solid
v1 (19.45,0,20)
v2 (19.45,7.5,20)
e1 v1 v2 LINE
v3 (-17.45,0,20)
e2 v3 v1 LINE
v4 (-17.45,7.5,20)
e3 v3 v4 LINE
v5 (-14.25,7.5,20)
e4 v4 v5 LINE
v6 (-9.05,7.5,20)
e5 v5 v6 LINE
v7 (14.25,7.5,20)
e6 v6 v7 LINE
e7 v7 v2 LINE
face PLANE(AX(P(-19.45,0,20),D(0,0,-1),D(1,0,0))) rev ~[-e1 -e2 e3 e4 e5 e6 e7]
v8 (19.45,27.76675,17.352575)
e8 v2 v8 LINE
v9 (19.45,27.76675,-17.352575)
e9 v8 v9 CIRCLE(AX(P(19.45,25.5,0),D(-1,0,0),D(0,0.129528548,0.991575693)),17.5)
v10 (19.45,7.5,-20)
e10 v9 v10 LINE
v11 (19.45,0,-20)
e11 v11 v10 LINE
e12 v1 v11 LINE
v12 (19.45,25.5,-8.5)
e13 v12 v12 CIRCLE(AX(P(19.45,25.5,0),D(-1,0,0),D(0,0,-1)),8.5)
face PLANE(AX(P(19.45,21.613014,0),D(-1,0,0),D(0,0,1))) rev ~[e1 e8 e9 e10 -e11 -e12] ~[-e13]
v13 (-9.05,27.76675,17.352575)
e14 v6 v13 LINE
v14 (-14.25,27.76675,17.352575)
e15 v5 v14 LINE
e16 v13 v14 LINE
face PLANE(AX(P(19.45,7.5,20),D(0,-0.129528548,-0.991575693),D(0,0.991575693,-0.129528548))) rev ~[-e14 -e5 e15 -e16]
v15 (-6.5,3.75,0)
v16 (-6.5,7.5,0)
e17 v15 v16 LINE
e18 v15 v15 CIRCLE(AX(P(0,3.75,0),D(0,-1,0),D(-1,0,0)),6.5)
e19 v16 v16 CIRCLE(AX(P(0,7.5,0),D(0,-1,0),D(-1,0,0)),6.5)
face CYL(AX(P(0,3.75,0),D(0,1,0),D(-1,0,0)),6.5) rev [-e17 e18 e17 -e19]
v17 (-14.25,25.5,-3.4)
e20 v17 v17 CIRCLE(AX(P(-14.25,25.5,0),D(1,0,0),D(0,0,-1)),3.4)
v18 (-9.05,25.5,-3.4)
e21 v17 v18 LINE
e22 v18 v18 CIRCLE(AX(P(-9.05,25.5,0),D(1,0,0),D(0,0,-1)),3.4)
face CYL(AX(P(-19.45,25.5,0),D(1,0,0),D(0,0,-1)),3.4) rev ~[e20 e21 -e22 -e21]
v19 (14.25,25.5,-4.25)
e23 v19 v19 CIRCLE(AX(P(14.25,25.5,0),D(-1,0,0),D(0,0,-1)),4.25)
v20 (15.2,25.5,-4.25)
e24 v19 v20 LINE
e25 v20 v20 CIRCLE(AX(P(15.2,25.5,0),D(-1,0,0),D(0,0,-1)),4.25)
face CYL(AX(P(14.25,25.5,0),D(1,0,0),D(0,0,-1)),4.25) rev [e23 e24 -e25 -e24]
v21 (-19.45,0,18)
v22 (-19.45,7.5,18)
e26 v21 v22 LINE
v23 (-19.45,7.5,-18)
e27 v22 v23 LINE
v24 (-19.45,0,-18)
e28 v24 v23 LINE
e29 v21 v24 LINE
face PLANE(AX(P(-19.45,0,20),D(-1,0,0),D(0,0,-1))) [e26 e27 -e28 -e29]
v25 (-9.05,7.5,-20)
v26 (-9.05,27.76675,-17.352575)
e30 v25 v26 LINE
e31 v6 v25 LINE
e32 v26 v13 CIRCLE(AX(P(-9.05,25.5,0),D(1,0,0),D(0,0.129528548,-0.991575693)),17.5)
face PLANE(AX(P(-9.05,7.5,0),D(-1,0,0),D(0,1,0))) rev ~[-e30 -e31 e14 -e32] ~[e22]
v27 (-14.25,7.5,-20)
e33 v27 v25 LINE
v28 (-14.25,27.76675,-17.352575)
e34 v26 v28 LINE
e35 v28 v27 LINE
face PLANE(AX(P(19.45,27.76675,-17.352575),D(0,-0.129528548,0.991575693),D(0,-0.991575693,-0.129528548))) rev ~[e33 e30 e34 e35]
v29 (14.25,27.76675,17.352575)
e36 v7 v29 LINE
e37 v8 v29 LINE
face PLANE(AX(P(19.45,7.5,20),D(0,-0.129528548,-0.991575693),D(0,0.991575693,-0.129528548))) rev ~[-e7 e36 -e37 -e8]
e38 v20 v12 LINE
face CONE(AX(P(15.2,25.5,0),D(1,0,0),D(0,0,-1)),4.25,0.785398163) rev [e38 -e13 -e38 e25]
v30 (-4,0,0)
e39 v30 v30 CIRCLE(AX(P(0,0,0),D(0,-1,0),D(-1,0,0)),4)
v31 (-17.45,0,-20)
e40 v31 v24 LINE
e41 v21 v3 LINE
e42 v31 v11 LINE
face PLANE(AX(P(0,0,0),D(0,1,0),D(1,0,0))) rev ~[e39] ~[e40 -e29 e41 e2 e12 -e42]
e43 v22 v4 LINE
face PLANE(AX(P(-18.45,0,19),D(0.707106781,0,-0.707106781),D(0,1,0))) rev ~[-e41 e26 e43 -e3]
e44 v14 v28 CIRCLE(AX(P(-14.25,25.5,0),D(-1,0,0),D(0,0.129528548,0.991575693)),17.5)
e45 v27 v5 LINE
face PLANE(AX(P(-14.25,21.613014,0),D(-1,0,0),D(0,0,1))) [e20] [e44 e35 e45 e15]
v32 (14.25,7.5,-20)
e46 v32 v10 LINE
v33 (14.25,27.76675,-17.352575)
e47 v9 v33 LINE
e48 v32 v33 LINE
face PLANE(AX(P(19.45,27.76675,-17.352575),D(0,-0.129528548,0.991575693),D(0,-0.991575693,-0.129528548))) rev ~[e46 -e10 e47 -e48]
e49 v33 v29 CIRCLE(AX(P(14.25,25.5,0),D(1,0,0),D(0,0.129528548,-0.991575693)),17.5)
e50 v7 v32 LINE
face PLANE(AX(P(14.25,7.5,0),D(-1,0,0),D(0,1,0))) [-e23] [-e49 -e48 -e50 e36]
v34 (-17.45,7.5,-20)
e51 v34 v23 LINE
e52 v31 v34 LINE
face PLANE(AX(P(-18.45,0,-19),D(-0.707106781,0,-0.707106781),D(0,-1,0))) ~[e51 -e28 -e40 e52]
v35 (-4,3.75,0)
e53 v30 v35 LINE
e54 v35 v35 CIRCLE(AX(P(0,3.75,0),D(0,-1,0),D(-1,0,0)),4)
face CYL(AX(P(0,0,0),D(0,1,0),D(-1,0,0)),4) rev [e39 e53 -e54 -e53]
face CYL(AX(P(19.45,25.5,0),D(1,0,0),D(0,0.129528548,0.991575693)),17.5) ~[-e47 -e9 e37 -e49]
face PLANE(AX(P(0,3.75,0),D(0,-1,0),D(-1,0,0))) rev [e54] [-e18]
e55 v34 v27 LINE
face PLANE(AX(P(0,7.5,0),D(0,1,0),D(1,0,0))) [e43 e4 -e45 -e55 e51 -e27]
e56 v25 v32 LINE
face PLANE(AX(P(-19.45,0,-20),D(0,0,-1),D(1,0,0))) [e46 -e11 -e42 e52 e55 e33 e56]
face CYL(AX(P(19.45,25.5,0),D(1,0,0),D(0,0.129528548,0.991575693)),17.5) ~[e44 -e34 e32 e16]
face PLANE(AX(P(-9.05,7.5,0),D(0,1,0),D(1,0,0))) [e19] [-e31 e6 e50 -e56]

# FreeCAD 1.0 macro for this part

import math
import FreeCAD as App
import Part
import Sketcher
from FreeCAD import Vector
Q = App.Units.Quantity


def edges_at(feature, points):
    """Names of the edges that pass closest to the given points."""
    edges = feature.Shape.Edges
    near = lambda p: min(range(len(edges)), key=lambda i: edges[i].distToShape(Part.Vertex(*p))[0])
    return sorted({f"Edge{near(p) + 1}" for p in points})


def add_polygon(sketch, points):
    """Adds a closed chain of lines whose ends are joined by coincident constraints."""
    first, n = sketch.GeometryCount, len(points)
    for a, b in zip(points, points[1:] + points[:1]):
        sketch.addGeometry(Part.LineSegment(App.Vector(*a, 0), App.Vector(*b, 0)), False)
    for i in range(n):
        sketch.addConstraint(Sketcher.Constraint("Coincident", first + i, 2, first + (i + 1) % n, 1))

doc = App.newDocument("Part")
params = doc.addObject("Spreadsheet::Sheet", "Params")
for row, (alias, value) in enumerate([
    ("sketch1_height", "40 mm"),
    ("sketch1_width", "38.9 mm"),
    ("pad1_length", "7.5 mm"),
    ("sketch2_width", "4 mm"),
    ("sketch2_width2", "6.5 mm"),
    ("sketch2_height", "7.5 mm"),
    ("groove_angle", "360 deg"),
    ("sketch3_radius", "17.5 mm"),
    ("sketch3_height", "40 mm"),
    ("pad2_length", "33.7 mm"),
    ("sketch4_width", "23.3 mm"),
    ("sketch4_height", "35.5 mm"),
    ("chamfer_size", "2 mm"),
    ("sketch5_width", "5.2 mm"),
    ("sketch5_height", "8.5 mm"),
    ("sketch5_width2", "0.95 mm"),
    ("groove2_angle", "360 deg"),
    ("sketch6_diameter", "6.8 mm"),
    ("hole_diameter", "6.8 mm"),
    ("hole_depth", "5.2 mm"),
], start=1):
    params.set(f"A{row}", alias)
    params.set(f"B{row}", "=" + value)
    params.setAlias(f"B{row}", alias)

body = doc.addObject("PartDesign::Body", "Body")

sketch1 = body.newObject("Sketcher::SketchObject", "Sketch")
sketch1.AttachmentSupport = (doc.getObject("XZ_Plane"), [""])
sketch1.MapMode = "FlatFace"
add_polygon(sketch1, [(-19, -20), (-19, 20), (19, 20), (19, -20)])
sketch1.addConstraint(Sketcher.Constraint("Vertical", 0))
sketch1.addConstraint(Sketcher.Constraint("Horizontal", 1))
sketch1.addConstraint(Sketcher.Constraint("Vertical", 2))
sketch1.addConstraint(Sketcher.Constraint("Horizontal", 3))
sketch1.addConstraint(Sketcher.Constraint("Symmetric", 0, 2, 2, 2, -1, 1))
sketch1.addConstraint(Sketcher.Constraint("DistanceY", 0, 1, 0, 2, 40.0))
sketch1.addConstraint(Sketcher.Constraint("DistanceX", 1, 1, 1, 2, 38.9))
sketch1.setExpression("Constraints[9]", "Params.sketch1_height")
sketch1.setExpression("Constraints[10]", "Params.sketch1_width")
pad1 = body.newObject("PartDesign::Pad", "Pad")
pad1.Profile = sketch1
pad1.setExpression("Length", "Params.pad1_length")
pad1.Reversed = True

sketch2 = body.newObject("Sketcher::SketchObject", "Sketch001")
sketch2.AttachmentSupport = (doc.getObject("XY_Plane"), [""])
sketch2.MapMode = "FlatFace"
add_polygon(sketch2, [(-4, 3.8), (-4, 0), (0, 0), (0, 7.5), (-6.5, 7.5), (-6.5, 3.8)])
sketch2.addConstraint(Sketcher.Constraint("Vertical", 0))
sketch2.addConstraint(Sketcher.Constraint("Horizontal", 1))
sketch2.addConstraint(Sketcher.Constraint("Vertical", 2))
sketch2.addConstraint(Sketcher.Constraint("Horizontal", 3))
sketch2.addConstraint(Sketcher.Constraint("Vertical", 4))
sketch2.addConstraint(Sketcher.Constraint("Horizontal", 5))
sketch2.addConstraint(Sketcher.Constraint("Coincident", 1, 2, -1, 1))
sketch2.addConstraint(Sketcher.Constraint("Equal", 0, 4))
sketch2.addConstraint(Sketcher.Constraint("DistanceX", 1, 1, 1, 2, 4.0))
sketch2.addConstraint(Sketcher.Constraint("DistanceX", 3, 2, 3, 1, 6.5))
sketch2.addConstraint(Sketcher.Constraint("DistanceY", 2, 1, 2, 2, 7.5))
sketch2.setExpression("Constraints[14]", "Params.sketch2_width")
sketch2.setExpression("Constraints[15]", "Params.sketch2_width2")
sketch2.setExpression("Constraints[16]", "Params.sketch2_height")
groove = body.newObject("PartDesign::Groove", "Groove")
groove.Profile = sketch2
groove.ReferenceAxis = (sketch2, ["V_Axis"])
groove.setExpression("Angle", "Params.groove_angle")

sketch3 = body.newObject("Sketcher::SketchObject", "Sketch002")
sketch3.AttachmentSupport = (doc.getObject("YZ_Plane"), [""])
sketch3.MapMode = "FlatFace"
sketch3.AttachmentOffset = App.Placement(Vector(0, 0, 19.45), App.Rotation())
sketch3.addGeometry(Part.LineSegment(Vector(28, 17, 0), Vector(8, 20, 0)), False)
sketch3.addGeometry(Part.LineSegment(Vector(8, 20, 0), Vector(8, -20, 0)), False)
sketch3.addGeometry(Part.LineSegment(Vector(8, -20, 0), Vector(28, -17, 0)), False)
sketch3.addGeometry(Part.ArcOfCircle(Part.Circle(Vector(26, 0, 0), Vector(0, 0, 1), 18), math.radians(-83), math.radians(83)), False)
sketch3.addConstraint(Sketcher.Constraint("Coincident", 0, 2, 1, 1))
sketch3.addConstraint(Sketcher.Constraint("Coincident", 1, 2, 2, 1))
sketch3.addConstraint(Sketcher.Constraint("Tangent", 2, 2, 3, 1))
sketch3.addConstraint(Sketcher.Constraint("Tangent", 3, 2, 0, 1))
sketch3.addConstraint(Sketcher.Constraint("Vertical", 1))
sketch3.addConstraint(Sketcher.Constraint("Symmetric", 2, 2, 3, 2, -1))
sketch3.addConstraint(Sketcher.Constraint("Radius", 3, 17.5))
sketch3.addConstraint(Sketcher.Constraint("DistanceY", 1, 2, 1, 1, 40.0))
sketch3.addConstraint(Sketcher.Constraint("DistanceX", 0, 2, 3, 3, 18.0))
sketch3.addConstraint(Sketcher.Constraint("DistanceX", -1, 1, 3, 3, 25.5))
sketch3.setExpression("Constraints[6]", "Params.sketch3_radius")
sketch3.setExpression("Constraints[7]", "Params.sketch3_height")
pad2 = body.newObject("PartDesign::Pad", "Pad001")
pad2.Profile = sketch3
pad2.setExpression("Length", "Params.pad2_length")
pad2.Reversed = True

sketch4 = body.newObject("Sketcher::SketchObject", "Sketch003")
sketch4.AttachmentSupport = (doc.getObject("XY_Plane"), [""])
sketch4.MapMode = "FlatFace"
add_polygon(sketch4, [(-9, 43), (-9, 8), (14, 8), (14, 43)])
sketch4.addConstraint(Sketcher.Constraint("Vertical", 0))
sketch4.addConstraint(Sketcher.Constraint("Horizontal", 1))
sketch4.addConstraint(Sketcher.Constraint("Vertical", 2))
sketch4.addConstraint(Sketcher.Constraint("Horizontal", 3))
sketch4.addConstraint(Sketcher.Constraint("DistanceX", 1, 1, 1, 2, 23.3))
sketch4.addConstraint(Sketcher.Constraint("DistanceY", 0, 2, 0, 1, 35.5))
sketch4.addConstraint(Sketcher.Constraint("DistanceY", -1, 1, 2, 2, 43.0))
sketch4.addConstraint(Sketcher.Constraint("DistanceX", 0, 2, -1, 1, 9.05))
sketch4.setExpression("Constraints[8]", "Params.sketch4_width")
sketch4.setExpression("Constraints[9]", "Params.sketch4_height")
pocket1 = body.newObject("PartDesign::Pocket", "Pocket")
pocket1.Profile = sketch4
pocket1.Type = "ThroughAll"
pocket1.Midplane = True
doc.recompute()

chamfer = body.newObject("PartDesign::Chamfer", "Chamfer")
chamfer.Base = (pocket1, edges_at(pocket1, [(-19.45, 3.75, -20), (-19.45, 3.75, 20)]))
chamfer.setExpression("Size", "Params.chamfer_size")

sketch5 = body.newObject("Sketcher::SketchObject", "Sketch004")
sketch5.AttachmentSupport = (doc.getObject("XZ_Plane"), [""])
sketch5.MapMode = "FlatFace"
sketch5.AttachmentOffset = App.Placement(Vector(0, 0, -25.5), App.Rotation())
add_polygon(sketch5, [(14.2, 0), (19.4, 0), (19.4, -8.5), (15.2, -4.2), (14.2, -4.2)])
sketch5.addConstraint(Sketcher.Constraint("Horizontal", 0))
sketch5.addConstraint(Sketcher.Constraint("Vertical", 1))
sketch5.addConstraint(Sketcher.Constraint("Horizontal", 3))
sketch5.addConstraint(Sketcher.Constraint("Vertical", 4))
sketch5.addConstraint(Sketcher.Constraint("PointOnObject", 0, 2, -1))
sketch5.addConstraint(Sketcher.Constraint("Angle", 2, Q("135 deg")))
sketch5.addConstraint(Sketcher.Constraint("DistanceX", 0, 1, 0, 2, 5.2))
sketch5.addConstraint(Sketcher.Constraint("DistanceY", 1, 2, 1, 1, 8.5))
sketch5.addConstraint(Sketcher.Constraint("DistanceX", 3, 2, 3, 1, 0.95))
sketch5.addConstraint(Sketcher.Constraint("DistanceX", -1, 1, 2, 2, 15.2))
sketch5.setExpression("Constraints[11]", "Params.sketch5_width")
sketch5.setExpression("Constraints[12]", "Params.sketch5_height")
sketch5.setExpression("Constraints[13]", "Params.sketch5_width2")
groove2 = body.newObject("PartDesign::Groove", "Groove001")
groove2.Profile = sketch5
groove2.ReferenceAxis = (sketch5, ["H_Axis"])
groove2.setExpression("Angle", "Params.groove2_angle")

sketch6 = body.newObject("Sketcher::SketchObject", "Sketch005")
sketch6.AttachmentSupport = (doc.getObject("YZ_Plane"), [""])
sketch6.MapMode = "FlatFace"
sketch6.AttachmentOffset = App.Placement(Vector(0, 0, -14.25), App.Rotation())
sketch6.addGeometry(Part.Circle(Vector(25.5, 0, 0), Vector(0, 0, 1), 3.4), False)
sketch6.addConstraint(Sketcher.Constraint("PointOnObject", 0, 3, -1))
sketch6.addConstraint(Sketcher.Constraint("Diameter", 0, 6.8))
sketch6.addConstraint(Sketcher.Constraint("DistanceX", -1, 1, 0, 3, 25.5))
sketch6.setExpression("Constraints[1]", "Params.sketch6_diameter")
doc.recompute()
hole = body.newObject("PartDesign::Hole", "Hole")
hole.Profile = sketch6
hole.ThreadType = "None"
hole.setExpression("Diameter", "Params.hole_diameter")
hole.DepthType = "Dimension"
hole.setExpression("Depth", "Params.hole_depth")
hole.DrillPoint = "Flat"
hole.Reversed = True

doc.recompute()
